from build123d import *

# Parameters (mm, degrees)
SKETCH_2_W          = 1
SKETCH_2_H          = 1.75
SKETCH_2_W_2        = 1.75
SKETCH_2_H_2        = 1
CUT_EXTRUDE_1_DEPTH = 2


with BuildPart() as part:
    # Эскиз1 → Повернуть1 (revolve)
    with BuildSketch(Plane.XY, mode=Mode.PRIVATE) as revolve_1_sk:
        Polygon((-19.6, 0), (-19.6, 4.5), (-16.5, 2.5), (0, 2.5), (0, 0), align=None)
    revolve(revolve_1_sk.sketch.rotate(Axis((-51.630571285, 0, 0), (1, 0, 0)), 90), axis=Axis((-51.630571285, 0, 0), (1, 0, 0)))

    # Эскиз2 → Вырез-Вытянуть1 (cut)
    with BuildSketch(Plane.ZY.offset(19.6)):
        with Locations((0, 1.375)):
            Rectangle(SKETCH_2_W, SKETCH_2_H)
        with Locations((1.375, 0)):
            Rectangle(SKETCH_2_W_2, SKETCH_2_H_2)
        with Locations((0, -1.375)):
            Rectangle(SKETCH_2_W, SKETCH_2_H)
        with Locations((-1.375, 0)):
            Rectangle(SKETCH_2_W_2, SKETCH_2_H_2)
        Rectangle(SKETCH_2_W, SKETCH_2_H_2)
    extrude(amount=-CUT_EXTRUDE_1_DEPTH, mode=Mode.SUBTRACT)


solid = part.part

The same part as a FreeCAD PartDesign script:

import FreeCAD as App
import Part
import Sketcher
from FreeCAD import Vector
Q = App.Units.Quantity

doc = App.newDocument("Part")
params = doc.addObject("Spreadsheet::Sheet", "Params")
for row, (alias, value) in enumerate([
    ("sketch1_width", "19.6 mm"),
    ("sketch1_width2", "16.5 mm"),
    ("sketch1_height", "4.5 mm"),
    ("sketch1_height2", "2.5 mm"),
    ("revolution_angle", "360 deg"),
    ("sketch2_width", "1 mm"),
    ("sketch2_width2", "1.75 mm"),
    ("pocket1_length", "2 mm"),
], start=1):
    params.set(f"A{row}", alias)
    params.set(f"B{row}", "=" + value)
    params.setAlias(f"B{row}", alias)

body = doc.addObject("PartDesign::Body", "Body")

# Sketch on XY plane
sketch1 = body.newObject("Sketcher::SketchObject", "Sketch")
sketch1.AttachmentSupport = (doc.getObject("XY_Plane"), [""])
sketch1.MapMode = "FlatFace"
sketch1.addGeometry([
    Part.LineSegment(Vector(-19.6, 4.5, 0), Vector(-19.6, 0, 0)),  # 0
    Part.LineSegment(Vector(-19.6, 0, 0), Vector(0, 0, 0)),  # 1
    Part.LineSegment(Vector(0, 0, 0), Vector(0, 2.5, 0)),  # 2
    Part.LineSegment(Vector(0, 2.5, 0), Vector(-16.5, 2.5, 0)),  # 3
    Part.LineSegment(Vector(-16.5, 2.5, 0), Vector(-19.6, 4.5, 0)),  # 4
], False)
sketch1.addConstraint([
    Sketcher.Constraint("Coincident", 0, 2, 1, 1),
    Sketcher.Constraint("Coincident", 1, 2, 2, 1),
    Sketcher.Constraint("Coincident", 2, 2, 3, 1),
    Sketcher.Constraint("Coincident", 3, 2, 4, 1),
    Sketcher.Constraint("Coincident", 4, 2, 0, 1),
    Sketcher.Constraint("Vertical", 0),
    Sketcher.Constraint("Horizontal", 1),
    Sketcher.Constraint("Vertical", 2),
    Sketcher.Constraint("Horizontal", 3),
    Sketcher.Constraint("Coincident", 1, 2, -1, 1),
    Sketcher.Constraint("DistanceX", 1, 1, 1, 2, Q("19.6 mm")),
    Sketcher.Constraint("DistanceX", 3, 2, 3, 1, Q("16.5 mm")),
    Sketcher.Constraint("DistanceY", 0, 2, 0, 1, Q("4.5 mm")),
    Sketcher.Constraint("DistanceY", 2, 1, 2, 2, Q("2.5 mm")),
])
sketch1.setExpression("Constraints[10]", "Params.sketch1_width")
sketch1.setExpression("Constraints[11]", "Params.sketch1_width2")
sketch1.setExpression("Constraints[12]", "Params.sketch1_height")
sketch1.setExpression("Constraints[13]", "Params.sketch1_height2")
revolution = body.newObject("PartDesign::Revolution", "Revolution")
revolution.Profile = sketch1
revolution.ReferenceAxis = (sketch1, ["H_Axis"])
revolution.setExpression("Angle", "Params.revolution_angle")

# Sketch on YZ plane
sketch2 = body.newObject("Sketcher::SketchObject", "Sketch001")
sketch2.AttachmentSupport = (doc.getObject("YZ_Plane"), [""])
sketch2.MapMode = "FlatFace"
sketch2.AttachmentOffset = App.Placement(Vector(0, 0, -19.6), App.Rotation())
sketch2.addGeometry([
    Part.LineSegment(Vector(2.2, -0.5, 0), Vector(0.5, -0.5, 0)),  # 0
    Part.LineSegment(Vector(0.5, -0.5, 0), Vector(0.5, -2.2, 0)),  # 1
    Part.LineSegment(Vector(0.5, -2.2, 0), Vector(-0.5, -2.2, 0)),  # 2
    Part.LineSegment(Vector(-0.5, -2.2, 0), Vector(-0.5, -0.5, 0)),  # 3
    Part.LineSegment(Vector(-0.5, -0.5, 0), Vector(-2.2, -0.5, 0)),  # 4
    Part.LineSegment(Vector(-2.2, -0.5, 0), Vector(-2.2, 0.5, 0)),  # 5
    Part.LineSegment(Vector(-2.2, 0.5, 0), Vector(-0.5, 0.5, 0)),  # 6
    Part.LineSegment(Vector(-0.5, 0.5, 0), Vector(-0.5, 2.2, 0)),  # 7
    Part.LineSegment(Vector(-0.5, 2.2, 0), Vector(0.5, 2.2, 0)),  # 8
    Part.LineSegment(Vector(0.5, 2.2, 0), Vector(0.5, 0.5, 0)),  # 9
    Part.LineSegment(Vector(0.5, 0.5, 0), Vector(2.2, 0.5, 0)),  # 10
    Part.LineSegment(Vector(2.2, 0.5, 0), Vector(2.2, -0.5, 0)),  # 11
], False)
sketch2.addConstraint([
    Sketcher.Constraint("Coincident", 0, 2, 1, 1),
    Sketcher.Constraint("Coincident", 1, 2, 2, 1),
    Sketcher.Constraint("Coincident", 2, 2, 3, 1),
    Sketcher.Constraint("Coincident", 3, 2, 4, 1),
    Sketcher.Constraint("Coincident", 4, 2, 5, 1),
    Sketcher.Constraint("Coincident", 5, 2, 6, 1),
    Sketcher.Constraint("Coincident", 6, 2, 7, 1),
    Sketcher.Constraint("Coincident", 7, 2, 8, 1),
    Sketcher.Constraint("Coincident", 8, 2, 9, 1),
    Sketcher.Constraint("Coincident", 9, 2, 10, 1),
    Sketcher.Constraint("Coincident", 10, 2, 11, 1),
    Sketcher.Constraint("Coincident", 11, 2, 0, 1),
    Sketcher.Constraint("Horizontal", 0),
    Sketcher.Constraint("Vertical", 1),
    Sketcher.Constraint("Horizontal", 2),
    Sketcher.Constraint("Vertical", 3),
    Sketcher.Constraint("Horizontal", 4),
    Sketcher.Constraint("Vertical", 5),
    Sketcher.Constraint("Horizontal", 6),
    Sketcher.Constraint("Vertical", 7),
    Sketcher.Constraint("Horizontal", 8),
    Sketcher.Constraint("Vertical", 9),
    Sketcher.Constraint("Horizontal", 10),
    Sketcher.Constraint("Vertical", 11),
    Sketcher.Constraint("Symmetric", 0, 2, 6, 2, -1, 1),
    Sketcher.Constraint("Symmetric", 2, 2, 8, 2, -1, 1),
    Sketcher.Constraint("Symmetric", 4, 2, 10, 2, -1, 1),
    Sketcher.Constraint("Symmetric", 0, 2, 3, 2, -2),
    Sketcher.Constraint("Equal", 10, 1),
    Sketcher.Constraint("Equal", 8, 5),
    Sketcher.Constraint("DistanceX", 2, 2, 2, 1, Q("1 mm")),
    Sketcher.Constraint("DistanceX", 0, 2, 0, 1, Q("1.75 mm")),
])
sketch2.setExpression("Constraints[30]", "Params.sketch2_width")
sketch2.setExpression("Constraints[31]", "Params.sketch2_width2")
pocket1 = body.newObject("PartDesign::Pocket", "Pocket")
pocket1.Profile = sketch2
pocket1.setExpression("Length", "Params.pocket1_length")
pocket1.Reversed = True

doc.recompute()
